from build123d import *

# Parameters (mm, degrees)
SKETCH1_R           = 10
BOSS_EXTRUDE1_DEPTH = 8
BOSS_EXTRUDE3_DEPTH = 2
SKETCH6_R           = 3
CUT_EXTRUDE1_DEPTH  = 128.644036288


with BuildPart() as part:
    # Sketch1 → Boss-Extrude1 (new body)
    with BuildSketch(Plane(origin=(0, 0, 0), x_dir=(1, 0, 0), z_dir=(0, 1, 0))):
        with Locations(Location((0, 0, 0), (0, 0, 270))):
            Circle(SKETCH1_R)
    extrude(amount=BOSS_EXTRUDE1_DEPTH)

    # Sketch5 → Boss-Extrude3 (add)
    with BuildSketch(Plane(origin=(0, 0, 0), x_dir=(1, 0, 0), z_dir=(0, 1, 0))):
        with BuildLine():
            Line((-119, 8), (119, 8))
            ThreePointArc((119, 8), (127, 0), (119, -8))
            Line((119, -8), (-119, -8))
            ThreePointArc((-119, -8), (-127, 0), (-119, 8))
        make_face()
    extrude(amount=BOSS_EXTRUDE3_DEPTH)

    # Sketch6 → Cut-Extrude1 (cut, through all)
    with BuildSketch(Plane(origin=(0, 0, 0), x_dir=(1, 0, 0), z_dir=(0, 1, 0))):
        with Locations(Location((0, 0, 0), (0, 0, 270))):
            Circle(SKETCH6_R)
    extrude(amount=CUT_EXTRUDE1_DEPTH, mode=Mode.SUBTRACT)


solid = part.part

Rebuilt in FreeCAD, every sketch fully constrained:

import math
import FreeCAD as App
import Part
import Sketcher
Q = App.Units.Quantity

doc = App.newDocument("Part")
body = doc.addObject("PartDesign::Body", "Body")

# Sketch on XZ plane
sketch1 = doc.addObject("Sketcher::SketchObject", "Sketch")
body.addObject(sketch1)
sketch1.AttachmentSupport = (doc.XZ_Plane, [""])
sketch1.MapMode = "FlatFace"
sketch1.addGeometry(Part.Circle(App.Vector(0, 0, 0), App.Vector(0, 0, 1), 10), False)
sketch1.addConstraint([
    Sketcher.Constraint("Coincident", 0, 3, -1, 1),
    Sketcher.Constraint("Diameter", 0, Q("20 mm")),
])
pad1 = doc.addObject("PartDesign::Pad", "Pad")
body.addObject(pad1)
pad1.Profile = sketch1
pad1.Length = 8
pad1.Reversed = True

# Sketch on XZ plane
sketch2 = doc.addObject("Sketcher::SketchObject", "Sketch001")
body.addObject(sketch2)
sketch2.AttachmentSupport = (doc.XZ_Plane, [""])
sketch2.MapMode = "FlatFace"
sketch2.addGeometry([
    Part.LineSegment(App.Vector(119, -8, 0), App.Vector(-119, -8, 0)),
    Part.ArcOfCircle(Part.Circle(App.Vector(-119, 0, 0), App.Vector(0, 0, 1), 8), math.radians(90), math.radians(270)),
    Part.LineSegment(App.Vector(-119, 8, 0), App.Vector(119, 8, 0)),
    Part.ArcOfCircle(Part.Circle(App.Vector(119, 0, 0), App.Vector(0, 0, 1), 8), math.radians(-90), math.radians(90)),
], False)
sketch2.addConstraint([
    Sketcher.Constraint("Tangent", 0, 2, 1, 2),
    Sketcher.Constraint("Tangent", 1, 1, 2, 1),
    Sketcher.Constraint("Tangent", 2, 2, 3, 2),
    Sketcher.Constraint("Tangent", 3, 1, 0, 1),
    Sketcher.Constraint("Horizontal", 0),
    Sketcher.Constraint("Horizontal", 2),
    Sketcher.Constraint("Symmetric", 1, 3, 3, 3, -1, 1),
    Sketcher.Constraint("Radius", 1, Q("8 mm")),
    Sketcher.Constraint("DistanceX", 0, 2, 0, 1, Q("238 mm")),
])
pad2 = doc.addObject("PartDesign::Pad", "Pad001")
body.addObject(pad2)
pad2.Profile = sketch2
pad2.Length = 2
pad2.Reversed = True

# Sketch on XZ plane
sketch3 = doc.addObject("Sketcher::SketchObject", "Sketch002")
body.addObject(sketch3)
sketch3.AttachmentSupport = (doc.XZ_Plane, [""])
sketch3.MapMode = "FlatFace"
sketch3.addGeometry(Part.Circle(App.Vector(0, 0, 0), App.Vector(0, 0, 1), 3), False)
sketch3.addConstraint([
    Sketcher.Constraint("Coincident", 0, 3, -1, 1),
    Sketcher.Constraint("Diameter", 0, Q("6 mm")),
])
pocket1 = doc.addObject("PartDesign::Pocket", "Pocket")
body.addObject(pocket1)
pocket1.Profile = sketch3
pocket1.Type = "ThroughAll"

doc.recompute()
